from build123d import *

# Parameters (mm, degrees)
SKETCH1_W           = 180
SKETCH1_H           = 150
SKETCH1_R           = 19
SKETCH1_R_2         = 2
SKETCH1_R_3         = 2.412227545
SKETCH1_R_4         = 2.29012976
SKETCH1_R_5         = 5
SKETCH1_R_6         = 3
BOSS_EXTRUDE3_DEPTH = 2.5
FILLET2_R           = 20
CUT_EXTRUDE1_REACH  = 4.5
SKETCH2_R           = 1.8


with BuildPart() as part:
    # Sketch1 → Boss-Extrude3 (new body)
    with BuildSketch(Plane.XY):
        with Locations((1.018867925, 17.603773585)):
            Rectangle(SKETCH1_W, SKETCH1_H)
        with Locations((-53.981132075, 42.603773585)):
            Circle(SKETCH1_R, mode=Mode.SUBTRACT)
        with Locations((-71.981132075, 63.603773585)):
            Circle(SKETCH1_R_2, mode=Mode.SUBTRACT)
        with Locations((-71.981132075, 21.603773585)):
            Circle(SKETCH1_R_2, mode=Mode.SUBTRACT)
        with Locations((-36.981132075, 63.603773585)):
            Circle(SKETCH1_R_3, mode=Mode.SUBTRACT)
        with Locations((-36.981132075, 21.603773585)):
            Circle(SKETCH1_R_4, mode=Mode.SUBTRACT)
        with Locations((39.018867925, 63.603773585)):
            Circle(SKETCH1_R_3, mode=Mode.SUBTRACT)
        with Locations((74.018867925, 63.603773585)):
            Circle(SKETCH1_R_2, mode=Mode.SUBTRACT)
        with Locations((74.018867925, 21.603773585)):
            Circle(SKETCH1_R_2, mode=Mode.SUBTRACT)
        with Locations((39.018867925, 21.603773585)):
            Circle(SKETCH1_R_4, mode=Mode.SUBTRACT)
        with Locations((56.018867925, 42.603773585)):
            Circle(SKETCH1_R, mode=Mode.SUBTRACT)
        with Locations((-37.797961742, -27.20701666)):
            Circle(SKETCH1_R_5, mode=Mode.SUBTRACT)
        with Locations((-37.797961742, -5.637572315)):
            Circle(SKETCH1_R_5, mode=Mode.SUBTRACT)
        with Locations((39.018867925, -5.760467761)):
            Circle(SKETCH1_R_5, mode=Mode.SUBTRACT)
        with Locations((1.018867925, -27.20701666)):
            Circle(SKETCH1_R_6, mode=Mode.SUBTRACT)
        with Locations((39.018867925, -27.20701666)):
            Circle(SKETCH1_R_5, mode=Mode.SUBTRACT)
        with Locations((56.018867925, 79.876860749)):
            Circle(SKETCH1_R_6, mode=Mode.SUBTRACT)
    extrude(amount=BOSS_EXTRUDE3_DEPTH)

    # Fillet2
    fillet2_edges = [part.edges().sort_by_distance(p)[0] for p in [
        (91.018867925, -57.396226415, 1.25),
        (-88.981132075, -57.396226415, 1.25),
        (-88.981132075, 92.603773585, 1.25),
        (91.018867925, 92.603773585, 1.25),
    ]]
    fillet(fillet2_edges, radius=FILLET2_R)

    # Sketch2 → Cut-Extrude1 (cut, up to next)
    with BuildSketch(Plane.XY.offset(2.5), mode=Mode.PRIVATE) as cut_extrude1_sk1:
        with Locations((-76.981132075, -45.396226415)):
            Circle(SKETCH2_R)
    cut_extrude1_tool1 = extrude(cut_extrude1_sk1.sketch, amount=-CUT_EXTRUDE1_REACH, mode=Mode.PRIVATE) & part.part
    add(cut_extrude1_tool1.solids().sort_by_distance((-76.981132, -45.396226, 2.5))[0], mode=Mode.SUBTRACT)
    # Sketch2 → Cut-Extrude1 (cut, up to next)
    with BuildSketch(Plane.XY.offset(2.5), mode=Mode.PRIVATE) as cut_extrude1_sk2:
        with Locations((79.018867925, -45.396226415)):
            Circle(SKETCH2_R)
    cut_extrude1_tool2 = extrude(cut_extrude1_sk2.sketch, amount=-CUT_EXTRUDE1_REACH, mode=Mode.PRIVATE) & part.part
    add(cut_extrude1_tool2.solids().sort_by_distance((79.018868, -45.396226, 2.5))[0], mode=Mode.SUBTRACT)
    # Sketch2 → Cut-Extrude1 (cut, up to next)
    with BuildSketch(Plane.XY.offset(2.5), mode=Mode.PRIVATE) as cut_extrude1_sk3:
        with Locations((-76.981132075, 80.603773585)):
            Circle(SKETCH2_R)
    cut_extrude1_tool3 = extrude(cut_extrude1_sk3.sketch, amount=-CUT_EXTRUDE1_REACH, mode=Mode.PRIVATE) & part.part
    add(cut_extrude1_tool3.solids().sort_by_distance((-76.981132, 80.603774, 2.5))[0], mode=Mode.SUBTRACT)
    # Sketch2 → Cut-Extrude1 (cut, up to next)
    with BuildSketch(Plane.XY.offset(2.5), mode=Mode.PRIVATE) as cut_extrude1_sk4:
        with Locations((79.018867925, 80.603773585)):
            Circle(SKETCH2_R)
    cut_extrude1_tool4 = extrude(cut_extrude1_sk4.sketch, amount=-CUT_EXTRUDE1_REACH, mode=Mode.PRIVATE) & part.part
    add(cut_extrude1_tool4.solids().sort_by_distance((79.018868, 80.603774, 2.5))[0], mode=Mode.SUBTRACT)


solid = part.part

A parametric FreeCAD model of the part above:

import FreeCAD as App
import Part
import Sketcher

V = App.Vector


def edges_at(feature, points):
    """Names of the edges that pass closest to the given points."""
    edges = feature.Shape.Edges
    near = lambda p: min(range(len(edges)), key=lambda i: edges[i].distToShape(Part.Vertex(*p))[0])
    return sorted({f"Edge{near(p) + 1}" for p in points})


def add_polygon(sketch, points):
    """Adds a closed chain of lines whose ends are joined by coincident constraints."""
    first, n = sketch.GeometryCount, len(points)
    for a, b in zip(points, points[1:] + points[:1]):
        sketch.addGeometry(Part.LineSegment(App.Vector(*a, 0), App.Vector(*b, 0)), False)
    for i in range(n):
        sketch.addConstraint(Sketcher.Constraint("Coincident", first + i, 2, first + (i + 1) % n, 1))

doc = App.newDocument("Part")
params = doc.addObject("Spreadsheet::Sheet", "Params")
for row, (alias, value) in enumerate([
    ("sketch1_diameter", "10 mm"),
    ("sketch1_diameter2", "4 mm"),
    ("sketch1_diameter3", "6 mm"),
    ("sketch1_diameter4", "38 mm"),
    ("sketch1_width", "180 mm"),
    ("pad1_length", "2.5 mm"),
    ("fillet_radius", "20 mm"),
    ("sketch2_diameter", "3.6 mm"),
    ("sketch3_diameter", "3.6 mm"),
    ("sketch4_diameter", "3.6 mm"),
    ("sketch5_diameter", "3.6 mm"),
], start=1):
    params.set(f"A{row}", alias)
    params.set(f"B{row}", "=" + value)
    params.setAlias(f"B{row}", alias)

body = doc.addObject("PartDesign::Body", "Body")

sketch1 = doc.addObject("Sketcher::SketchObject", "Sketch")
body.addObject(sketch1)
sketch1.AttachmentSupport = (doc.XY_Plane, [""])
sketch1.MapMode = "FlatFace"
add_polygon(sketch1, [(-89, 92.6), (-89, -57.4), (91, -57.4), (91, 92.6)])
sketch1.addGeometry(Part.Circle(V(-37.8, -27.2, 0), V(0, 0, 1), 5), False)
sketch1.addGeometry(Part.Circle(V(-37.8, -5.6, 0), V(0, 0, 1), 5), False)
sketch1.addGeometry(Part.Circle(V(-72, 21.6, 0), V(0, 0, 1), 2), False)
sketch1.addGeometry(Part.Circle(V(-37, 21.6, 0), V(0, 0, 1), 2.3), False)
sketch1.addGeometry(Part.Circle(V(1, -27.2, 0), V(0, 0, 1), 3), False)
sketch1.addGeometry(Part.Circle(V(39, -27.2, 0), V(0, 0, 1), 5), False)
sketch1.addGeometry(Part.Circle(V(39, -5.8, 0), V(0, 0, 1), 5), False)
sketch1.addGeometry(Part.Circle(V(39, 21.6, 0), V(0, 0, 1), 2.3), False)
sketch1.addGeometry(Part.Circle(V(74, 21.6, 0), V(0, 0, 1), 2), False)
sketch1.addGeometry(Part.Circle(V(-54, 42.6, 0), V(0, 0, 1), 19), False)
sketch1.addGeometry(Part.Circle(V(-72, 63.6, 0), V(0, 0, 1), 2), False)
sketch1.addGeometry(Part.Circle(V(-37, 63.6, 0), V(0, 0, 1), 2.4), False)
sketch1.addGeometry(Part.Circle(V(56, 42.6, 0), V(0, 0, 1), 19), False)
sketch1.addGeometry(Part.Circle(V(39, 63.6, 0), V(0, 0, 1), 2.4), False)
sketch1.addGeometry(Part.Circle(V(74, 63.6, 0), V(0, 0, 1), 2), False)
sketch1.addGeometry(Part.Circle(V(56, 79.9, 0), V(0, 0, 1), 3), False)
sketch1.addConstraint(Sketcher.Constraint("Vertical", 0))
sketch1.addConstraint(Sketcher.Constraint("Horizontal", 1))
sketch1.addConstraint(Sketcher.Constraint("Vertical", 2))
sketch1.addConstraint(Sketcher.Constraint("Horizontal", 3))
sketch1.addConstraint(Sketcher.Constraint("Equal", 4, 5))
sketch1.addConstraint(Sketcher.Constraint("Equal", 5, 9))
sketch1.addConstraint(Sketcher.Constraint("Equal", 9, 10))
sketch1.addConstraint(Sketcher.Constraint("Equal", 7, 11))
sketch1.addConstraint(Sketcher.Constraint("Equal", 6, 12))
sketch1.addConstraint(Sketcher.Constraint("Equal", 12, 14))
sketch1.addConstraint(Sketcher.Constraint("Equal", 13, 16))
sketch1.addConstraint(Sketcher.Constraint("Equal", 15, 17))
sketch1.addConstraint(Sketcher.Constraint("Equal", 14, 18))
sketch1.addConstraint(Sketcher.Constraint("Equal", 8, 19))
sketch1.addConstraint(Sketcher.Constraint("Horizontal", 6, 3, 7, 3))
sketch1.addConstraint(Sketcher.Constraint("Horizontal", 4, 3, 8, 3))
sketch1.addConstraint(Sketcher.Constraint("Horizontal", 8, 3, 9, 3))
sketch1.addConstraint(Sketcher.Constraint("Horizontal", 7, 3, 11, 3))
sketch1.addConstraint(Sketcher.Constraint("Horizontal", 11, 3, 12, 3))
sketch1.addConstraint(Sketcher.Constraint("Horizontal", 14, 3, 15, 3))
sketch1.addConstraint(Sketcher.Constraint("Horizontal", 13, 3, 16, 3))
sketch1.addConstraint(Sketcher.Constraint("Horizontal", 15, 3, 17, 3))
sketch1.addConstraint(Sketcher.Constraint("Horizontal", 17, 3, 18, 3))
sketch1.addConstraint(Sketcher.Constraint("Vertical", 4, 3, 5, 3))
sketch1.addConstraint(Sketcher.Constraint("Vertical", 9, 3, 10, 3))
sketch1.addConstraint(Sketcher.Constraint("Vertical", 10, 3, 11, 3))
sketch1.addConstraint(Sketcher.Constraint("Vertical", 6, 3, 14, 3))
sketch1.addConstraint(Sketcher.Constraint("Vertical", 7, 3, 15, 3))
sketch1.addConstraint(Sketcher.Constraint("Vertical", 11, 3, 17, 3))
sketch1.addConstraint(Sketcher.Constraint("Vertical", 12, 3, 18, 3))
sketch1.addConstraint(Sketcher.Constraint("Vertical", 16, 3, 19, 3))
sketch1.addConstraint(Sketcher.Constraint("Diameter", 4, 10.0))
sketch1.addConstraint(Sketcher.Constraint("Diameter", 6, 4.0))
sketch1.addConstraint(Sketcher.Constraint("Diameter", 8, 6.0))
sketch1.addConstraint(Sketcher.Constraint("Diameter", 13, 38.0))
sketch1.addConstraint(Sketcher.Constraint("DistanceX", 1, 1, 1, 2, 180.0))
sketch1.addConstraint(Sketcher.Constraint("DistanceY", 0, 2, 0, 1, 150.0))
sketch1.addConstraint(Sketcher.Constraint("DistanceX", 6, 3, 7, 3, 35.0))
sketch1.addConstraint(Sketcher.Constraint("DistanceX", 7, 3, 8, 3, 38.0))
sketch1.addConstraint(Sketcher.Constraint("DistanceX", 8, 3, 9, 3, 38.0))
sketch1.addConstraint(Sketcher.Constraint("DistanceX", 11, 3, 12, 3, 35.0))
sketch1.addConstraint(Sketcher.Constraint("DistanceX", 13, 3, 7, 3, 17.0))
sketch1.addConstraint(Sketcher.Constraint("DistanceY", 7, 3, 13, 3, 21.0))
sketch1.addConstraint(Sketcher.Constraint("DistanceY", 13, 3, 14, 3, 21.0))
sketch1.addConstraint(Sketcher.Constraint("DistanceX", 11, 3, 16, 3, 17.0))
sketch1.addConstraint(Sketcher.Constraint("DistanceX", 0, 2, 6, 3, 17.0))
sketch1.addConstraint(Sketcher.Constraint("DistanceY", 0, 2, 6, 3, 79.0))
sketch1.addConstraint(Sketcher.Constraint("Diameter", 7, 4.58026))
sketch1.addConstraint(Sketcher.Constraint("Diameter", 15, 4.824455))
sketch1.addConstraint(Sketcher.Constraint("DistanceX", 4, 3, -1, 1, 37.797962))
sketch1.addConstraint(Sketcher.Constraint("DistanceY", -1, 1, 19, 3, 79.876861))
sketch1.addConstraint(Sketcher.Constraint("DistanceX", 6, 3, 5, 3, 34.18317))
sketch1.addConstraint(Sketcher.Constraint("DistanceY", 4, 3, 6, 3, 48.81079))
sketch1.addConstraint(Sketcher.Constraint("DistanceY", 9, 3, 10, 3, 21.446549))
sketch1.addConstraint(Sketcher.Constraint("DistanceY", 4, 3, -1, 1, 27.207017))
sketch1.addConstraint(Sketcher.Constraint("DistanceY", 5, 3, -1, 1, 5.637572))
sketch1.setExpression("Constraints[35]", "Params.sketch1_diameter")
sketch1.setExpression("Constraints[36]", "Params.sketch1_diameter2")
sketch1.setExpression("Constraints[37]", "Params.sketch1_diameter3")
sketch1.setExpression("Constraints[38]", "Params.sketch1_diameter4")
sketch1.setExpression("Constraints[39]", "Params.sketch1_width")
pad1 = doc.addObject("PartDesign::Pad", "Pad")
body.addObject(pad1)
pad1.Profile = sketch1
pad1.setExpression("Length", "Params.pad1_length")
doc.recompute()

fillet = doc.addObject("PartDesign::Fillet", "Fillet")
body.addObject(fillet)
fillet.Base = (pad1, edges_at(pad1, [
    (91.019, -57.396, 1.25),
    (-88.981, -57.396, 1.25),
    (-88.981, 92.604, 1.25),
    (91.019, 92.604, 1.25),
]))
fillet.setExpression("Radius", "Params.fillet_radius")

sketch2 = doc.addObject("Sketcher::SketchObject", "Sketch001")
body.addObject(sketch2)
sketch2.AttachmentSupport = (doc.XY_Plane, [""])
sketch2.MapMode = "FlatFace"
sketch2.AttachmentOffset = App.Placement(V(0, 0, 2.5), App.Rotation())
sketch2.addGeometry(Part.Circle(V(-77, -45.4, 0), V(0, 0, 1), 1.8), False)
sketch2.addConstraint(Sketcher.Constraint("Diameter", 0, 3.6))
sketch2.addConstraint(Sketcher.Constraint("DistanceX", 0, 3, -1, 1, 76.981132))
sketch2.addConstraint(Sketcher.Constraint("DistanceY", 0, 3, -1, 1, 45.396226))
sketch2.setExpression("Constraints[0]", "Params.sketch2_diameter")
pocket1 = doc.addObject("PartDesign::Pocket", "Pocket")
body.addObject(pocket1)
pocket1.Profile = sketch2
pocket1.Type = "UpToFirst"

sketch3 = doc.addObject("Sketcher::SketchObject", "Sketch002")
body.addObject(sketch3)
sketch3.AttachmentSupport = (doc.XY_Plane, [""])
sketch3.MapMode = "FlatFace"
sketch3.AttachmentOffset = App.Placement(V(0, 0, 2.5), App.Rotation())
sketch3.addGeometry(Part.Circle(V(79, -45.4, 0), V(0, 0, 1), 1.8), False)
sketch3.addConstraint(Sketcher.Constraint("Diameter", 0, 3.6))
sketch3.addConstraint(Sketcher.Constraint("DistanceX", -1, 1, 0, 3, 79.018868))
sketch3.addConstraint(Sketcher.Constraint("DistanceY", 0, 3, -1, 1, 45.396226))
sketch3.setExpression("Constraints[0]", "Params.sketch3_diameter")
pocket2 = doc.addObject("PartDesign::Pocket", "Pocket001")
body.addObject(pocket2)
pocket2.Profile = sketch3
pocket2.Type = "UpToFirst"

sketch4 = doc.addObject("Sketcher::SketchObject", "Sketch003")
body.addObject(sketch4)
sketch4.AttachmentSupport = (doc.XY_Plane, [""])
sketch4.MapMode = "FlatFace"
sketch4.AttachmentOffset = App.Placement(V(0, 0, 2.5), App.Rotation())
sketch4.addGeometry(Part.Circle(V(-77, 80.6, 0), V(0, 0, 1), 1.8), False)
sketch4.addConstraint(Sketcher.Constraint("Diameter", 0, 3.6))
sketch4.addConstraint(Sketcher.Constraint("DistanceX", 0, 3, -1, 1, 76.981132))
sketch4.addConstraint(Sketcher.Constraint("DistanceY", -1, 1, 0, 3, 80.603774))
sketch4.setExpression("Constraints[0]", "Params.sketch4_diameter")
pocket3 = doc.addObject("PartDesign::Pocket", "Pocket002")
body.addObject(pocket3)
pocket3.Profile = sketch4
pocket3.Type = "UpToFirst"

sketch5 = doc.addObject("Sketcher::SketchObject", "Sketch004")
body.addObject(sketch5)
sketch5.AttachmentSupport = (doc.XY_Plane, [""])
sketch5.MapMode = "FlatFace"
sketch5.AttachmentOffset = App.Placement(V(0, 0, 2.5), App.Rotation())
sketch5.addGeometry(Part.Circle(V(79, 80.6, 0), V(0, 0, 1), 1.8), False)
sketch5.addConstraint(Sketcher.Constraint("Diameter", 0, 3.6))
sketch5.addConstraint(Sketcher.Constraint("DistanceX", -1, 1, 0, 3, 79.018868))
sketch5.addConstraint(Sketcher.Constraint("DistanceY", -1, 1, 0, 3, 80.603774))
sketch5.setExpression("Constraints[0]", "Params.sketch5_diameter")
pocket4 = doc.addObject("PartDesign::Pocket", "Pocket003")
body.addObject(pocket4)
pocket4.Profile = sketch5
pocket4.Type = "UpToFirst"

doc.recompute()
